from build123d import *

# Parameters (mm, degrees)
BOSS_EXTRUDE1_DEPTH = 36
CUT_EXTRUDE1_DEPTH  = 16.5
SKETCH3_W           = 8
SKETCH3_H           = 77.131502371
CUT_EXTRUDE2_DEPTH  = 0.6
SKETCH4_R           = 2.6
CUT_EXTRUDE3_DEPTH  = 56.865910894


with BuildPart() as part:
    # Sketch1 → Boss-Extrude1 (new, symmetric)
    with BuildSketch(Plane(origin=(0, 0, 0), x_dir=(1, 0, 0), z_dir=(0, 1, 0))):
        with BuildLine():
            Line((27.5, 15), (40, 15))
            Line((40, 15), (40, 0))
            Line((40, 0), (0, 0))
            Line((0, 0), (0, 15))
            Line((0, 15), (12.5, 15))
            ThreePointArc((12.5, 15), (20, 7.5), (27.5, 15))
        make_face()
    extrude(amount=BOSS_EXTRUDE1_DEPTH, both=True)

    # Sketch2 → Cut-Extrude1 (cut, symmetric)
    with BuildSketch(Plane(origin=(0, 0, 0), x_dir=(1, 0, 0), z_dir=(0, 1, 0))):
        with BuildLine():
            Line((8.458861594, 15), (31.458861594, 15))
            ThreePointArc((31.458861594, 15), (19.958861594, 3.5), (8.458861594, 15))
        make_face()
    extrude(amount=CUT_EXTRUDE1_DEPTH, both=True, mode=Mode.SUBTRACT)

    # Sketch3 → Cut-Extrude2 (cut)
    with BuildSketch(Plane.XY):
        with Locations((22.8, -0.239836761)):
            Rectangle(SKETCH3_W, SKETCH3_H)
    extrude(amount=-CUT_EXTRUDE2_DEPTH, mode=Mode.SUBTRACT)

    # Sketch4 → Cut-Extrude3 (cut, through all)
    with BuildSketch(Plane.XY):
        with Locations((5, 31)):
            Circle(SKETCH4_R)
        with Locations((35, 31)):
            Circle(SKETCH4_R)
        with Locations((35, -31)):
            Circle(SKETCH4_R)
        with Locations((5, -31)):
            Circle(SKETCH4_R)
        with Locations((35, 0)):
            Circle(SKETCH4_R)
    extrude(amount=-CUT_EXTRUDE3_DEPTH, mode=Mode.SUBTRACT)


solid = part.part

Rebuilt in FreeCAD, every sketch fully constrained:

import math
import FreeCAD as App
import Part
import Sketcher
from FreeCAD import Vector
Q = App.Units.Quantity


def add_polygon(sketch, points):
    """Adds a closed chain of lines whose ends are joined by coincident constraints."""
    first, n = sketch.GeometryCount, len(points)
    for a, b in zip(points, points[1:] + points[:1]):
        sketch.addGeometry(Part.LineSegment(App.Vector(*a, 0), App.Vector(*b, 0)), False)
    for i in range(n):
        sketch.addConstraint(Sketcher.Constraint("Coincident", first + i, 2, first + (i + 1) % n, 1))

doc = App.newDocument("Part")
body = doc.addObject("PartDesign::Body", "Body")

sketch1 = doc.addObject("Sketcher::SketchObject", "Sketch")
body.addObject(sketch1)
sketch1.AttachmentSupport = (doc.XZ_Plane, [""])
sketch1.MapMode = "FlatFace"
sketch1.addGeometry(Part.LineSegment(Vector(40, -15, 0), Vector(27.5, -15, 0)), False)
sketch1.addGeometry(Part.ArcOfCircle(Part.Circle(Vector(20, -15, 0), Vector(0, 0, 1), 7.5), math.radians(0), math.radians(180)), False)
sketch1.addGeometry(Part.LineSegment(Vector(12.5, -15, 0), Vector(0, -15, 0)), False)
sketch1.addGeometry(Part.LineSegment(Vector(0, -15, 0), Vector(0, 0, 0)), False)
sketch1.addGeometry(Part.LineSegment(Vector(0, 0, 0), Vector(40, 0, 0)), False)
sketch1.addGeometry(Part.LineSegment(Vector(40, 0, 0), Vector(40, -15, 0)), False)
sketch1.addConstraint(Sketcher.Constraint("Coincident", 0, 2, 1, 1))
sketch1.addConstraint(Sketcher.Constraint("Coincident", 1, 2, 2, 1))
sketch1.addConstraint(Sketcher.Constraint("Coincident", 2, 2, 3, 1))
sketch1.addConstraint(Sketcher.Constraint("Coincident", 3, 2, 4, 1))
sketch1.addConstraint(Sketcher.Constraint("Coincident", 4, 2, 5, 1))
sketch1.addConstraint(Sketcher.Constraint("Coincident", 5, 2, 0, 1))
sketch1.addConstraint(Sketcher.Constraint("Horizontal", 0))
sketch1.addConstraint(Sketcher.Constraint("Horizontal", 2))
sketch1.addConstraint(Sketcher.Constraint("Vertical", 3))
sketch1.addConstraint(Sketcher.Constraint("Horizontal", 4))
sketch1.addConstraint(Sketcher.Constraint("Vertical", 5))
sketch1.addConstraint(Sketcher.Constraint("Coincident", 3, 2, -1, 1))
sketch1.addConstraint(Sketcher.Constraint("Horizontal", 1, 3, 0, 2))
sketch1.addConstraint(Sketcher.Constraint("Horizontal", 0, 2, 1, 2))
sketch1.addConstraint(Sketcher.Constraint("Equal", 0, 2))
sketch1.addConstraint(Sketcher.Constraint("Radius", 1, Q("7.5 mm")))
sketch1.addConstraint(Sketcher.Constraint("DistanceX", 4, 1, 4, 2, Q("40 mm")))
sketch1.addConstraint(Sketcher.Constraint("DistanceY", 3, 1, 3, 2, Q("15 mm")))
pad1 = doc.addObject("PartDesign::Pad", "Pad")
body.addObject(pad1)
pad1.Profile = sketch1
pad1.Length = 72
pad1.Midplane = True

sketch2 = doc.addObject("Sketcher::SketchObject", "Sketch001")
body.addObject(sketch2)
sketch2.AttachmentSupport = (doc.XZ_Plane, [""])
sketch2.MapMode = "FlatFace"
sketch2.addGeometry(Part.LineSegment(Vector(31.458862, -15, 0), Vector(8.458862, -15, 0)), False)
sketch2.addGeometry(Part.ArcOfCircle(Part.Circle(Vector(19.958862, -15, 0), Vector(0, 0, 1), 11.5), math.radians(0), math.radians(180)), False)
sketch2.addConstraint(Sketcher.Constraint("Coincident", 0, 1, 1, 1))
sketch2.addConstraint(Sketcher.Constraint("Coincident", 1, 2, 0, 2))
sketch2.addConstraint(Sketcher.Constraint("Horizontal", 0))
sketch2.addConstraint(Sketcher.Constraint("Horizontal", 1, 3, 0, 1))
sketch2.addConstraint(Sketcher.Constraint("Radius", 1, Q("11.5 mm")))
sketch2.addConstraint(Sketcher.Constraint("DistanceY", 1, 3, -1, 1, Q("15 mm")))
sketch2.addConstraint(Sketcher.Constraint("DistanceX", -1, 1, 1, 3, Q("19.958862 mm")))
pocket1 = doc.addObject("PartDesign::Pocket", "Pocket")
body.addObject(pocket1)
pocket1.Profile = sketch2
pocket1.Length = 33
pocket1.Midplane = True

sketch3 = doc.addObject("Sketcher::SketchObject", "Sketch002")
body.addObject(sketch3)
sketch3.AttachmentSupport = (doc.XY_Plane, [""])
sketch3.MapMode = "FlatFace"
add_polygon(sketch3, [(18.8, 38.325914), (18.8, -38.805588), (26.8, -38.805588), (26.8, 38.325914)])
sketch3.addConstraint(Sketcher.Constraint("Vertical", 0))
sketch3.addConstraint(Sketcher.Constraint("Horizontal", 1))
sketch3.addConstraint(Sketcher.Constraint("Vertical", 2))
sketch3.addConstraint(Sketcher.Constraint("Horizontal", 3))
sketch3.addConstraint(Sketcher.Constraint("DistanceX", 1, 1, 1, 2, Q("8 mm")))
sketch3.addConstraint(Sketcher.Constraint("DistanceX", -1, 1, 0, 2, Q("18.8 mm")))
sketch3.addConstraint(Sketcher.Constraint("DistanceY", 0, 2, 0, 1, Q("77.131502 mm")))
sketch3.addConstraint(Sketcher.Constraint("DistanceY", 0, 2, -1, 1, Q("38.805588 mm")))
pocket2 = doc.addObject("PartDesign::Pocket", "Pocket001")
body.addObject(pocket2)
pocket2.Profile = sketch3
pocket2.Length = 0.6

sketch4 = doc.addObject("Sketcher::SketchObject", "Sketch003")
body.addObject(sketch4)
sketch4.AttachmentSupport = (doc.XY_Plane, [""])
sketch4.MapMode = "FlatFace"
sketch4.addGeometry(Part.Circle(Vector(5, 31, 0), Vector(0, 0, 1), 2.6), False)
sketch4.addGeometry(Part.Circle(Vector(35, 31, 0), Vector(0, 0, 1), 2.6), False)
sketch4.addGeometry(Part.Circle(Vector(35, -31, 0), Vector(0, 0, 1), 2.6), False)
sketch4.addGeometry(Part.Circle(Vector(5, -31, 0), Vector(0, 0, 1), 2.6), False)
sketch4.addGeometry(Part.Circle(Vector(35, 0, 0), Vector(0, 0, 1), 2.6), False)
sketch4.addConstraint(Sketcher.Constraint("Equal", 0, 1))
sketch4.addConstraint(Sketcher.Constraint("Equal", 1, 2))
sketch4.addConstraint(Sketcher.Constraint("Equal", 2, 3))
sketch4.addConstraint(Sketcher.Constraint("Equal", 3, 4))
sketch4.addConstraint(Sketcher.Constraint("Symmetric", 1, 3, 2, 3, -1))
sketch4.addConstraint(Sketcher.Constraint("Symmetric", 0, 3, 3, 3, -1))
sketch4.addConstraint(Sketcher.Constraint("PointOnObject", 4, 3, -1))
sketch4.addConstraint(Sketcher.Constraint("Horizontal", 0, 3, 1, 3))
sketch4.addConstraint(Sketcher.Constraint("Vertical", 2, 3, 4, 3))
sketch4.addConstraint(Sketcher.Constraint("Diameter", 0, Q("5.2 mm")))
sketch4.addConstraint(Sketcher.Constraint("DistanceX", -1, 1, 0, 3, Q("5 mm")))
sketch4.addConstraint(Sketcher.Constraint("DistanceY", -1, 1, 0, 3, Q("31 mm")))
sketch4.addConstraint(Sketcher.Constraint("DistanceX", -1, 1, 1, 3, Q("35 mm")))
pocket3 = doc.addObject("PartDesign::Pocket", "Pocket002")
body.addObject(pocket3)
pocket3.Profile = sketch4
pocket3.Type = "ThroughAll"

doc.recompute()
